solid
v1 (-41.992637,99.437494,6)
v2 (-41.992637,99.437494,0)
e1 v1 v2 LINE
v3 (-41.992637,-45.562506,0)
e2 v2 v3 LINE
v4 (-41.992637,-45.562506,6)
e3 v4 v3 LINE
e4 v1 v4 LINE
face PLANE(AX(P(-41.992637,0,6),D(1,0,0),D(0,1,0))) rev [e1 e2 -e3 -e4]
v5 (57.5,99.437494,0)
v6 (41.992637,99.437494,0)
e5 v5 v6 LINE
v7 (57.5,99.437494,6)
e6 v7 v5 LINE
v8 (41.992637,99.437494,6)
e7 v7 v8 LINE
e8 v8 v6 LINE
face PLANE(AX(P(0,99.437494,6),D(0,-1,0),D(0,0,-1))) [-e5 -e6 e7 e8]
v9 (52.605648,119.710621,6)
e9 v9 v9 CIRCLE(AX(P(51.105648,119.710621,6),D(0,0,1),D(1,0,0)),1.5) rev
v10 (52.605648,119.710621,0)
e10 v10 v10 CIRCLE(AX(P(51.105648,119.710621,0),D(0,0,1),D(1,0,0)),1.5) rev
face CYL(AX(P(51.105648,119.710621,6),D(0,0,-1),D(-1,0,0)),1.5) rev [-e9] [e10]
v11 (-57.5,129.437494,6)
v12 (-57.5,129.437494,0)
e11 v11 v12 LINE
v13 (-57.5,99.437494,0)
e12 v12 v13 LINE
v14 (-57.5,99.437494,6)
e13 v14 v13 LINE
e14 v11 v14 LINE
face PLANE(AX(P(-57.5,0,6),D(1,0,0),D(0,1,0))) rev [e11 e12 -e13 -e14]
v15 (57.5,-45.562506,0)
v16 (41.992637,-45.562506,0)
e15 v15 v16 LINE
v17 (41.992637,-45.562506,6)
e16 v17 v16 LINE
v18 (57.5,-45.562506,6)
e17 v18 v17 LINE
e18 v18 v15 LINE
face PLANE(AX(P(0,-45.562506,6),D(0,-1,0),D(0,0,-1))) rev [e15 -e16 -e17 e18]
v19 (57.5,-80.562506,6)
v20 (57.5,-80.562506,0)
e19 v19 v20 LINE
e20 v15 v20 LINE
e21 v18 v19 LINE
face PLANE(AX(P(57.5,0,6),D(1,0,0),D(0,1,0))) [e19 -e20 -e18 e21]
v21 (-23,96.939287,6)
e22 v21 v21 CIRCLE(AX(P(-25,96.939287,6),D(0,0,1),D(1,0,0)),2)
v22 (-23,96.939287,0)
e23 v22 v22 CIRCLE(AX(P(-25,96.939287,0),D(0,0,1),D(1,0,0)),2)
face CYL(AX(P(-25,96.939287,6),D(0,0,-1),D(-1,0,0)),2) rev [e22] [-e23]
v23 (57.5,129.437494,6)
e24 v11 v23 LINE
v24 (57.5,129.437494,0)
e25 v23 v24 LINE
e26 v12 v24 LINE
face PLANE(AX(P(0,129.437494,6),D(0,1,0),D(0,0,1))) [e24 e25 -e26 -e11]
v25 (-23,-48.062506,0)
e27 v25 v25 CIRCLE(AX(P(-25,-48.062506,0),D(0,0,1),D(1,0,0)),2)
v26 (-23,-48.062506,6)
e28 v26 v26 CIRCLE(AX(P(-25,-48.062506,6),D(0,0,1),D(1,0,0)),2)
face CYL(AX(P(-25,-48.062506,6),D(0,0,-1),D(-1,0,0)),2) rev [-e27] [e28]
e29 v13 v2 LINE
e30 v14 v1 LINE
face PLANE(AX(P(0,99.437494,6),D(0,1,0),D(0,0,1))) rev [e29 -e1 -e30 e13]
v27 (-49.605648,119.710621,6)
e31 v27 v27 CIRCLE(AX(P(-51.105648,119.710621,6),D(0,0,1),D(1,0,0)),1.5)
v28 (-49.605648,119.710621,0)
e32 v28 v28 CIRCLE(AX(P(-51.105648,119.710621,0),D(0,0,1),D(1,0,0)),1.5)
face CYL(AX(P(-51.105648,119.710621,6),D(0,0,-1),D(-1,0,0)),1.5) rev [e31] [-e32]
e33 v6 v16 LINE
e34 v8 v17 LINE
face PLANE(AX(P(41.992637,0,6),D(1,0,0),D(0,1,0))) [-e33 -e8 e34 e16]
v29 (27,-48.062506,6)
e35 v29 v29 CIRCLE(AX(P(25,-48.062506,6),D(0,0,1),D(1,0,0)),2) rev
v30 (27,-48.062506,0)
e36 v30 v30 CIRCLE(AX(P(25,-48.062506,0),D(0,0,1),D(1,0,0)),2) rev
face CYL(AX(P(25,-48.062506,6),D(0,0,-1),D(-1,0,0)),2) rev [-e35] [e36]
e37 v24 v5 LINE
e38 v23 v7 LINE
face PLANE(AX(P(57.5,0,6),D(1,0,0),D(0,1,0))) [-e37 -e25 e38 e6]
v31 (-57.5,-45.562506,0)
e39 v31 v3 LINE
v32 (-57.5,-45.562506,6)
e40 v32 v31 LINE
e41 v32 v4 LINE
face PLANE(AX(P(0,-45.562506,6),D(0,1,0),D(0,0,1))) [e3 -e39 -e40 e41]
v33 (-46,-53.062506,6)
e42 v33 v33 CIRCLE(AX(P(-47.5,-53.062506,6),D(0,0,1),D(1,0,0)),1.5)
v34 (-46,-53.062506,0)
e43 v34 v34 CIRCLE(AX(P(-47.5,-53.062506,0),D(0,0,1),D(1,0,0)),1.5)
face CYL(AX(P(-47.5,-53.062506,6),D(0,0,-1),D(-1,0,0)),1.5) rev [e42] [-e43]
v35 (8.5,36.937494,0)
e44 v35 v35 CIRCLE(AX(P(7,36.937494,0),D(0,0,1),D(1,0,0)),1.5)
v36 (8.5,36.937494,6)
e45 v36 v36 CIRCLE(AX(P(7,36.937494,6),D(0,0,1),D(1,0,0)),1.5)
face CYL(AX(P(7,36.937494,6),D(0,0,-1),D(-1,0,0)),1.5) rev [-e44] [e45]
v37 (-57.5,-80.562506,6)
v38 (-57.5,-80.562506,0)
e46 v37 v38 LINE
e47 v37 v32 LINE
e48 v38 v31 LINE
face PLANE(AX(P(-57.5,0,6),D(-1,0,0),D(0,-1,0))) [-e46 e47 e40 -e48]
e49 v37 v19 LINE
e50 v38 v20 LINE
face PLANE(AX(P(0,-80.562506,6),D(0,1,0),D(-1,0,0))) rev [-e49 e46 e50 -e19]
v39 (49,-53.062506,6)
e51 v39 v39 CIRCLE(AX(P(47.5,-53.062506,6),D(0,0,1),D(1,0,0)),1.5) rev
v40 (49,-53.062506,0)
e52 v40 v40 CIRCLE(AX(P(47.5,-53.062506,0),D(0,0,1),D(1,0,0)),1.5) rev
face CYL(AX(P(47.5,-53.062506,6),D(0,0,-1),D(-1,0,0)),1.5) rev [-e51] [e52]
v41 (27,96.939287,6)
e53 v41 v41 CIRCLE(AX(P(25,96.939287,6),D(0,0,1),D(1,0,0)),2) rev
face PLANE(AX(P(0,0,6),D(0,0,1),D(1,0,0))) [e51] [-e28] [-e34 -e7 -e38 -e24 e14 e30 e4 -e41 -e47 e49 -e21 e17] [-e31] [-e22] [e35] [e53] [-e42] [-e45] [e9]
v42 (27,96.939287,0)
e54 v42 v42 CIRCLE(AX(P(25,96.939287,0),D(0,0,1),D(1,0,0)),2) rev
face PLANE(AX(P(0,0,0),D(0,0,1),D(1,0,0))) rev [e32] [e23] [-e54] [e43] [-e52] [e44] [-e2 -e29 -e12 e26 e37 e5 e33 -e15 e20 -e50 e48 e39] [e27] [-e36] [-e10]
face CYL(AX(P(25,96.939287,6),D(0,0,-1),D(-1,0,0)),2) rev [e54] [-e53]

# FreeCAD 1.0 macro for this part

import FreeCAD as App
import Part
import Sketcher
Q = App.Units.Quantity

doc = App.newDocument("Part")
body = doc.addObject("PartDesign::Body", "Body")

# Sketch on XY plane
sketch1 = body.newObject("Sketcher::SketchObject", "Sketch")
sketch1.AttachmentSupport = (doc.getObject("XY_Plane"), [""])
sketch1.MapMode = "FlatFace"
sketch1.addGeometry([
    Part.LineSegment(App.Vector(57.5, 129.4, 0), App.Vector(-57.5, 129.4, 0)),  # 0
    Part.LineSegment(App.Vector(-57.5, 129.4, 0), App.Vector(-57.5, 99.4, 0)),  # 1
    Part.LineSegment(App.Vector(-57.5, 99.4, 0), App.Vector(-42, 99.4, 0)),  # 2
    Part.LineSegment(App.Vector(-42, 99.4, 0), App.Vector(-42, -45.6, 0)),  # 3
    Part.LineSegment(App.Vector(-42, -45.6, 0), App.Vector(-57.5, -45.6, 0)),  # 4
    Part.LineSegment(App.Vector(-57.5, -45.6, 0), App.Vector(-57.5, -80.6, 0)),  # 5
    Part.LineSegment(App.Vector(-57.5, -80.6, 0), App.Vector(57.5, -80.6, 0)),  # 6
    Part.LineSegment(App.Vector(57.5, -80.6, 0), App.Vector(57.5, -45.6, 0)),  # 7
    Part.LineSegment(App.Vector(57.5, -45.6, 0), App.Vector(42, -45.6, 0)),  # 8
    Part.LineSegment(App.Vector(42, -45.6, 0), App.Vector(42, 99.4, 0)),  # 9
    Part.LineSegment(App.Vector(42, 99.4, 0), App.Vector(57.5, 99.4, 0)),  # 10
    Part.LineSegment(App.Vector(57.5, 99.4, 0), App.Vector(57.5, 129.4, 0)),  # 11
    Part.Circle(App.Vector(47.5, -53.1, 0), App.Vector(0, 0, 1), 1.5),  # 12
    Part.Circle(App.Vector(25, -48.1, 0), App.Vector(0, 0, 1), 2),  # 13
    Part.Circle(App.Vector(-25, -48.1, 0), App.Vector(0, 0, 1), 2),  # 14
    Part.Circle(App.Vector(-47.5, -53.1, 0), App.Vector(0, 0, 1), 1.5),  # 15
    Part.Circle(App.Vector(7, 36.9, 0), App.Vector(0, 0, 1), 1.5),  # 16
    Part.Circle(App.Vector(51.1, 119.7, 0), App.Vector(0, 0, 1), 1.5),  # 17
    Part.Circle(App.Vector(25, 96.9, 0), App.Vector(0, 0, 1), 2),  # 18
    Part.Circle(App.Vector(-25, 96.9, 0), App.Vector(0, 0, 1), 2),  # 19
    Part.Circle(App.Vector(-51.1, 119.7, 0), App.Vector(0, 0, 1), 1.5),  # 20
], False)
sketch1.addConstraint([
    Sketcher.Constraint("Coincident", 0, 2, 1, 1),
    Sketcher.Constraint("Coincident", 1, 2, 2, 1),
    Sketcher.Constraint("Coincident", 2, 2, 3, 1),
    Sketcher.Constraint("Coincident", 3, 2, 4, 1),
    Sketcher.Constraint("Coincident", 4, 2, 5, 1),
    Sketcher.Constraint("Coincident", 5, 2, 6, 1),
    Sketcher.Constraint("Coincident", 6, 2, 7, 1),
    Sketcher.Constraint("Coincident", 7, 2, 8, 1),
    Sketcher.Constraint("Coincident", 8, 2, 9, 1),
    Sketcher.Constraint("Coincident", 9, 2, 10, 1),
    Sketcher.Constraint("Coincident", 10, 2, 11, 1),
    Sketcher.Constraint("Coincident", 11, 2, 0, 1),
    Sketcher.Constraint("Horizontal", 0),
    Sketcher.Constraint("Vertical", 1),
    Sketcher.Constraint("Horizontal", 2),
    Sketcher.Constraint("Vertical", 3),
    Sketcher.Constraint("Horizontal", 4),
    Sketcher.Constraint("Vertical", 5),
    Sketcher.Constraint("Horizontal", 6),
    Sketcher.Constraint("Vertical", 7),
    Sketcher.Constraint("Horizontal", 8),
    Sketcher.Constraint("Vertical", 9),
    Sketcher.Constraint("Horizontal", 10),
    Sketcher.Constraint("Vertical", 11),
    Sketcher.Constraint("Equal", 13, 14),
    Sketcher.Constraint("Equal", 12, 15),
    Sketcher.Constraint("Equal", 15, 16),
    Sketcher.Constraint("Equal", 16, 17),
    Sketcher.Constraint("Equal", 14, 18),
    Sketcher.Constraint("Equal", 18, 19),
    Sketcher.Constraint("Equal", 17, 20),
    Sketcher.Constraint("Symmetric", 13, 3, 14, 3, -2),
    Sketcher.Constraint("Symmetric", 12, 3, 15, 3, -2),
    Sketcher.Constraint("Symmetric", 18, 3, 19, 3, -2),
    Sketcher.Constraint("Symmetric", 17, 3, 20, 3, -2),
    Sketcher.Constraint("Symmetric", 4, 2, 7, 2, -2),
    Sketcher.Constraint("Symmetric", 2, 2, 9, 2, -2),
    Sketcher.Constraint("Vertical", 13, 3, 18, 3),
    Sketcher.Constraint("Vertical", 1, 2, 4, 2),
    Sketcher.Constraint("Vertical", 7, 2, 10, 2),
    Sketcher.Constraint("Diameter", 12, Q("3 mm")),
    Sketcher.Constraint("Diameter", 13, Q("4 mm")),
    Sketcher.Constraint("DistanceX", 0, 2, 0, 1, Q("115 mm")),
    Sketcher.Constraint("DistanceY", 1, 2, 1, 1, Q("30 mm")),
    Sketcher.Constraint("DistanceY", 3, 2, 3, 1, Q("145 mm")),
    Sketcher.Constraint("DistanceY", 5, 2, 5, 1, Q("35 mm")),
    Sketcher.Constraint("DistanceX", -1, 1, 13, 3, Q("25 mm")),
    Sketcher.Constraint("DistanceX", -1, 1, 16, 3, Q("7 mm")),
    Sketcher.Constraint("DistanceY", 12, 3, 13, 3, Q("5 mm")),
    Sketcher.Constraint("DistanceX", 15, 3, 12, 3, Q("95 mm")),
    Sketcher.Constraint("DistanceY", 13, 3, 16, 3, Q("85 mm")),
    Sketcher.Constraint("DistanceY", 16, 3, 0, 2, Q("92.5 mm")),
    Sketcher.Constraint("DistanceX", 2, 1, 2, 2, Q("15.507363 mm")),
    Sketcher.Constraint("DistanceX", -1, 1, 17, 3, Q("51.105648 mm")),
    Sketcher.Constraint("DistanceY", -1, 1, 17, 3, Q("119.710621 mm")),
    Sketcher.Constraint("DistanceY", 12, 3, -1, 1, Q("53.062506 mm")),
    Sketcher.Constraint("DistanceY", -1, 1, 18, 3, Q("96.939287 mm")),
])
pad1 = body.newObject("PartDesign::Pad", "Pad")
pad1.Profile = sketch1
pad1.Length = 6

doc.recompute()
